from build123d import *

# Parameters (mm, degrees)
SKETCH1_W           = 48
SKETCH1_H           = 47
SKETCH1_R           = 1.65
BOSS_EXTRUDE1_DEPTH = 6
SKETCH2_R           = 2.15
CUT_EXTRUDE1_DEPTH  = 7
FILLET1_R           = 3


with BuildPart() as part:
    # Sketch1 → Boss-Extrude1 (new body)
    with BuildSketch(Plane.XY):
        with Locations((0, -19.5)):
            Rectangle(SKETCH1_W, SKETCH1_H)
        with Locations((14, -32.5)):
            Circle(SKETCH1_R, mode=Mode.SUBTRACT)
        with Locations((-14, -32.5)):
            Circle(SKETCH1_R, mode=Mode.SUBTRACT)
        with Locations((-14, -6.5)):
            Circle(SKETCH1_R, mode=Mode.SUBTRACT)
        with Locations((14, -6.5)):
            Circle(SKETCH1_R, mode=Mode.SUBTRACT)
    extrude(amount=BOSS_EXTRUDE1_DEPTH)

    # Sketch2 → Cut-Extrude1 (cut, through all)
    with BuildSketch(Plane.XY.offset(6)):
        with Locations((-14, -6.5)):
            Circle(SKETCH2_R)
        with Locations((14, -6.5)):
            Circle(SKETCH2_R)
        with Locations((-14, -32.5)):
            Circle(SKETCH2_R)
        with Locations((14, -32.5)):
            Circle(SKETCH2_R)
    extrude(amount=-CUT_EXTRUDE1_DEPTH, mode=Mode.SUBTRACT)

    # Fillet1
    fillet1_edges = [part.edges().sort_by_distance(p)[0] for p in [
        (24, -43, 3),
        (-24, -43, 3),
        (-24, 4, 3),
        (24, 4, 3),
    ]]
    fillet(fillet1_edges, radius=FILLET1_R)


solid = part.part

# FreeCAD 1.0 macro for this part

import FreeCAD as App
import Part
import Sketcher

V = App.Vector


def edges_at(feature, points):
    """Names of the edges that pass closest to the given points."""
    edges = feature.Shape.Edges
    near = lambda p: min(range(len(edges)), key=lambda i: edges[i].distToShape(Part.Vertex(*p))[0])
    return sorted({f"Edge{near(p) + 1}" for p in points})


def add_polygon(sketch, points):
    """Adds a closed chain of lines whose ends are joined by coincident constraints."""
    first, n = sketch.GeometryCount, len(points)
    for a, b in zip(points, points[1:] + points[:1]):
        sketch.addGeometry(Part.LineSegment(App.Vector(*a, 0), App.Vector(*b, 0)), False)
    for i in range(n):
        sketch.addConstraint(Sketcher.Constraint("Coincident", first + i, 2, first + (i + 1) % n, 1))

doc = App.newDocument("Part")
body = doc.addObject("PartDesign::Body", "Body")

# Sketch on XY plane
sketch1 = body.newObject("Sketcher::SketchObject", "Sketch")
sketch1.AttachmentSupport = (doc.getObject("XY_Plane"), [""])
sketch1.MapMode = "FlatFace"
add_polygon(sketch1, [(-24, 4), (-24, -43), (24, -43), (24, 4)])  # lines 0-3
sketch1.addGeometry(Part.Circle(V(-14, -32.5, 0), V(0, 0, 1), 1.65), False)  # 4
sketch1.addGeometry(Part.Circle(V(14, -32.5, 0), V(0, 0, 1), 1.65), False)  # 5
sketch1.addGeometry(Part.Circle(V(-14, -6.5, 0), V(0, 0, 1), 1.65), False)  # 6
sketch1.addGeometry(Part.Circle(V(14, -6.5, 0), V(0, 0, 1), 1.65), False)  # 7
sketch1.addConstraint([
    Sketcher.Constraint("Vertical", 0),
    Sketcher.Constraint("Horizontal", 1),
    Sketcher.Constraint("Vertical", 2),
    Sketcher.Constraint("Horizontal", 3),
    Sketcher.Constraint("Equal", 4, 5),
    Sketcher.Constraint("Equal", 5, 6),
    Sketcher.Constraint("Equal", 6, 7),
    Sketcher.Constraint("Symmetric", 4, 3, 5, 3, -2),
    Sketcher.Constraint("Symmetric", 6, 3, 7, 3, -2),
    Sketcher.Constraint("Vertical", 4, 3, 6, 3),
    Sketcher.Constraint("Diameter", 4, 3.3),
    Sketcher.Constraint("DistanceX", 1, 1, 1, 2, 48.0),
    Sketcher.Constraint("DistanceY", 0, 2, 0, 1, 47.0),
    Sketcher.Constraint("DistanceX", 4, 3, -1, 1, 14.0),
    Sketcher.Constraint("DistanceX", 0, 2, -1, 1, 24.0),
    Sketcher.Constraint("DistanceY", 0, 2, -1, 1, 43.0),
    Sketcher.Constraint("DistanceY", 4, 3, 6, 3, 26.0),
    Sketcher.Constraint("DistanceY", 4, 3, -1, 1, 32.5),
])
pad1 = body.newObject("PartDesign::Pad", "Pad")
pad1.Profile = sketch1
pad1.Length = 6

# Sketch on XY plane
sketch2 = body.newObject("Sketcher::SketchObject", "Sketch001")
sketch2.AttachmentSupport = (doc.getObject("XY_Plane"), [""])
sketch2.MapMode = "FlatFace"
sketch2.AttachmentOffset = App.Placement(V(0, 0, 6), App.Rotation())
sketch2.addGeometry([
    Part.Circle(V(-14, -6.5, 0), V(0, 0, 1), 2.15),
    Part.Circle(V(14, -6.5, 0), V(0, 0, 1), 2.15),
    Part.Circle(V(-14, -32.5, 0), V(0, 0, 1), 2.15),
    Part.Circle(V(14, -32.5, 0), V(0, 0, 1), 2.15),
], False)
sketch2.addConstraint([
    Sketcher.Constraint("Equal", 0, 1),
    Sketcher.Constraint("Equal", 1, 2),
    Sketcher.Constraint("Equal", 2, 3),
    Sketcher.Constraint("Symmetric", 0, 3, 1, 3, -2),
    Sketcher.Constraint("Symmetric", 2, 3, 3, 3, -2),
    Sketcher.Constraint("Vertical", 0, 3, 2, 3),
    Sketcher.Constraint("Diameter", 0, 4.3),
    Sketcher.Constraint("DistanceX", 0, 3, -1, 1, 14.0),
    Sketcher.Constraint("DistanceY", 2, 3, 0, 3, 26.0),
    Sketcher.Constraint("DistanceY", 0, 3, -1, 1, 6.5),
])
pocket1 = body.newObject("PartDesign::Pocket", "Pocket")
pocket1.Profile = sketch2
pocket1.Type = "ThroughAll"
doc.recompute()

fillet = body.newObject("PartDesign::Fillet", "Fillet")
fillet.Base = (pocket1, edges_at(pocket1, [
    (24, -43, 3),
    (-24, -43, 3),
    (-24, 4, 3),
    (24, 4, 3),
]))
fillet.Radius = 3

doc.recompute()
